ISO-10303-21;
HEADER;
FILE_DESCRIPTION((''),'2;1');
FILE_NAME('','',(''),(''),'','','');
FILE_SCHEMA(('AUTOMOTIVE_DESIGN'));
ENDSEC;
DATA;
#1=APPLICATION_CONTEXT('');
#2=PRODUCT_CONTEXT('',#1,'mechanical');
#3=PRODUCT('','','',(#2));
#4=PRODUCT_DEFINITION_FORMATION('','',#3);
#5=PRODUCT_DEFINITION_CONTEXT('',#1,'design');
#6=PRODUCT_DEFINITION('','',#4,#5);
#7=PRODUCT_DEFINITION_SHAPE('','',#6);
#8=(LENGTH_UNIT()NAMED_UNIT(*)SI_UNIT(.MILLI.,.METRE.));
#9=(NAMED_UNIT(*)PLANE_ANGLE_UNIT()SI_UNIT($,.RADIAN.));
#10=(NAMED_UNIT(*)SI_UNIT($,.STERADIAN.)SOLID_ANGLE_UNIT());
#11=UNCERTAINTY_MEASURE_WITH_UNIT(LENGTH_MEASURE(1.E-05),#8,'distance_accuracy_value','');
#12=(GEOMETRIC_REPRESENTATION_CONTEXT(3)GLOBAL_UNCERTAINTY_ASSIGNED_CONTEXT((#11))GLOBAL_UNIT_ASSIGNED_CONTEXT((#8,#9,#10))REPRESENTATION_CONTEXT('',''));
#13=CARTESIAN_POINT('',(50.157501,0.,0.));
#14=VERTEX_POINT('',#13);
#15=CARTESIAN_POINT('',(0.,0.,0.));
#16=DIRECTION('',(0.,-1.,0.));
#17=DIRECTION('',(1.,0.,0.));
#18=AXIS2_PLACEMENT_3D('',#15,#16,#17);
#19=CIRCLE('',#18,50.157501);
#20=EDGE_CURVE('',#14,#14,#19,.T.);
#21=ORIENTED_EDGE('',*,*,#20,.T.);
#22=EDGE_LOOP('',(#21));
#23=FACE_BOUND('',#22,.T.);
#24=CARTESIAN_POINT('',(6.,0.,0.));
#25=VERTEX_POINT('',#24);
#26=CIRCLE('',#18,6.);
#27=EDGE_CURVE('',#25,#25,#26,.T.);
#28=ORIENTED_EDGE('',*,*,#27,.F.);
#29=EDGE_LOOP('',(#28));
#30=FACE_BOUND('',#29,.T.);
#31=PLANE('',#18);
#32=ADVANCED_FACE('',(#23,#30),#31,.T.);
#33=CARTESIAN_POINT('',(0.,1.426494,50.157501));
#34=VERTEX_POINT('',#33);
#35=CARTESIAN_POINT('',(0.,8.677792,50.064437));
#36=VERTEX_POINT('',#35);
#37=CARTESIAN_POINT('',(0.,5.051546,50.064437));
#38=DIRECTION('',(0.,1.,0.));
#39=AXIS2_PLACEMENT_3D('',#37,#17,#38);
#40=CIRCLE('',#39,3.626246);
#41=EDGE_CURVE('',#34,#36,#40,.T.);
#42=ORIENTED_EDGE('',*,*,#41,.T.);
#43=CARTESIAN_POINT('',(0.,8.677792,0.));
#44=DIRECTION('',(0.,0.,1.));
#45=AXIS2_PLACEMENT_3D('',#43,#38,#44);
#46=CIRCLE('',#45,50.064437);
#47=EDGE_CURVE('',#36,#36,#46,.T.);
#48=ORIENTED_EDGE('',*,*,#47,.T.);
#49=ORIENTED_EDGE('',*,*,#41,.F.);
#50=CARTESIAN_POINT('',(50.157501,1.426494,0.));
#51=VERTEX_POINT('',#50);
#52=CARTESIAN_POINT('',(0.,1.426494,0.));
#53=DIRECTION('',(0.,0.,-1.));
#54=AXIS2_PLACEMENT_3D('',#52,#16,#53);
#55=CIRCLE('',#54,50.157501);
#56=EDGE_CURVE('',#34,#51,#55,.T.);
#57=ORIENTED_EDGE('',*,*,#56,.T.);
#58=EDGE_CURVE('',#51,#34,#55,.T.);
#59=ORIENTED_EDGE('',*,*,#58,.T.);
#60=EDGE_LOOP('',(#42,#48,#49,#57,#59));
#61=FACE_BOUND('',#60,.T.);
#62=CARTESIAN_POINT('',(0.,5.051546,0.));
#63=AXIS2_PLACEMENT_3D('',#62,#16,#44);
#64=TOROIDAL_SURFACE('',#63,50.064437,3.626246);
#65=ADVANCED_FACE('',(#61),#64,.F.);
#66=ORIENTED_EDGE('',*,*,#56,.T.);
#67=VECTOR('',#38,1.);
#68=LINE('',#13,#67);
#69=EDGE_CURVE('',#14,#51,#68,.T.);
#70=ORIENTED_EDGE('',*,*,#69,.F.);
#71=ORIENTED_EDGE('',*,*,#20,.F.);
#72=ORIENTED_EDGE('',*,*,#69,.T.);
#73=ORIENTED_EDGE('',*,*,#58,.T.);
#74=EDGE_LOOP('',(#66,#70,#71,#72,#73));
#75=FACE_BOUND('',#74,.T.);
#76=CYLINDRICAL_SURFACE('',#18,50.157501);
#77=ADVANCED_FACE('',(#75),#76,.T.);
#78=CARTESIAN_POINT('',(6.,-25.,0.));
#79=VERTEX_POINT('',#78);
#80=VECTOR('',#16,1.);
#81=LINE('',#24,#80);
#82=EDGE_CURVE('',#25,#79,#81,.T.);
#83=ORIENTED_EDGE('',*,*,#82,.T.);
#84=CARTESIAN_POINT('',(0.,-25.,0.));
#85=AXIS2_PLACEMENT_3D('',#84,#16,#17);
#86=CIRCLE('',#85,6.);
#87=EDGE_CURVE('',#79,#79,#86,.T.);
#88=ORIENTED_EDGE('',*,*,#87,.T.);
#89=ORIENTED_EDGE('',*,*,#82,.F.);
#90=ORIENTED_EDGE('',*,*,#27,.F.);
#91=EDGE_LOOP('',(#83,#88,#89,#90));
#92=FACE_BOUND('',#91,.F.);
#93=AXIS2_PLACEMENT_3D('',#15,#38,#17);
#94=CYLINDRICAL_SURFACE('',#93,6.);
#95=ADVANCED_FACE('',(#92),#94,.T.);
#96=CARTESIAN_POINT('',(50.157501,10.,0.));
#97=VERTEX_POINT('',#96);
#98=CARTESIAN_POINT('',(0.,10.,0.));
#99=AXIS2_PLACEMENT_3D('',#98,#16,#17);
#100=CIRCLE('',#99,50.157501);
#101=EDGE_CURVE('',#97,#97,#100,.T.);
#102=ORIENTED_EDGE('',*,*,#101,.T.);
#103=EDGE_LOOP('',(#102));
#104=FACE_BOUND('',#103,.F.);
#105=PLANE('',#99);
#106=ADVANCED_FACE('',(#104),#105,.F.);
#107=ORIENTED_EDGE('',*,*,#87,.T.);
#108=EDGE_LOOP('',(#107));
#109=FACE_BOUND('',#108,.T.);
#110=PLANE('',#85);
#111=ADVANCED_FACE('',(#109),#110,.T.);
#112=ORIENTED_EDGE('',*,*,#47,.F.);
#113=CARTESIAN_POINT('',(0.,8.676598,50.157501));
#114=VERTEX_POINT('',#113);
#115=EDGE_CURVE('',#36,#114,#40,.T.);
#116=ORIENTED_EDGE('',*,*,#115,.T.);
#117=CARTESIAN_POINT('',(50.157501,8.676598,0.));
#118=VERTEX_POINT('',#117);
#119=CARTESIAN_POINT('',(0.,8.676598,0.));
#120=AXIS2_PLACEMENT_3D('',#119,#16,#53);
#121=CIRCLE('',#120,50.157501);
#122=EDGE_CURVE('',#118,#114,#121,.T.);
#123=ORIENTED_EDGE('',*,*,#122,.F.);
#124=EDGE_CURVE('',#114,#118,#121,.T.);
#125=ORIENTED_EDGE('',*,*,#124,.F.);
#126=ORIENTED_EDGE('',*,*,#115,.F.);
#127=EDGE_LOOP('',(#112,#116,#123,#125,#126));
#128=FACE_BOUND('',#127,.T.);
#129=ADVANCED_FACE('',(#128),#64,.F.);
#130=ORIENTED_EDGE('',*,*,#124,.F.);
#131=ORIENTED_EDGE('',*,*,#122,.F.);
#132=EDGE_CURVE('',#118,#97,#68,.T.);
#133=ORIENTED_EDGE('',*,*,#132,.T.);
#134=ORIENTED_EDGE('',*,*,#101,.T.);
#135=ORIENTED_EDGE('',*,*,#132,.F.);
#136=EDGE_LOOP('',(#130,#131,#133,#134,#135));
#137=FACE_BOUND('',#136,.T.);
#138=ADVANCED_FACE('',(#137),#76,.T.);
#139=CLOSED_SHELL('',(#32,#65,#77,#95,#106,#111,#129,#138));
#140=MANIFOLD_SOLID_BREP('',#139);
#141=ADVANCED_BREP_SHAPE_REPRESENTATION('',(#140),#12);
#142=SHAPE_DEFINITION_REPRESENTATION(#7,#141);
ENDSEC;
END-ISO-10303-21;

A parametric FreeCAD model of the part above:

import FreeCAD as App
import Part
import Sketcher
Q = App.Units.Quantity

doc = App.newDocument("Part")
body = doc.addObject("PartDesign::Body", "Body")

# Sketch on XZ plane
sketch1 = body.newObject("Sketcher::SketchObject", "Sketch")
sketch1.AttachmentSupport = (doc.getObject("XZ_Plane"), [""])
sketch1.MapMode = "FlatFace"
sketch1.addGeometry(Part.Circle(App.Vector(0, 0, 0), App.Vector(0, 0, 1), 50), False)
sketch1.addConstraint([
    Sketcher.Constraint("Coincident", 0, 3, -1, 1),
    Sketcher.Constraint("Diameter", 0, Q("100.315002 mm")),
])
pad1 = body.newObject("PartDesign::Pad", "Pad")
pad1.Profile = sketch1
pad1.Length = 10
pad1.Reversed = True

# Sketch on YZ plane
sketch2 = body.newObject("Sketcher::SketchObject", "Sketch001")
sketch2.AttachmentSupport = (doc.getObject("YZ_Plane"), [""])
sketch2.MapMode = "FlatFace"
sketch2.addGeometry(Part.Circle(App.Vector(5.1, 50.1, 0), App.Vector(0, 0, 1), 3.6), False)
sketch2.addConstraint([
    Sketcher.Constraint("Diameter", 0, Q("7.252492 mm")),
    Sketcher.Constraint("DistanceX", -1, 1, 0, 3, Q("5.051546 mm")),
    Sketcher.Constraint("DistanceY", -1, 1, 0, 3, Q("50.064437 mm")),
])
groove = body.newObject("PartDesign::Groove", "Groove")
groove.Profile = sketch2
groove.ReferenceAxis = (sketch2, ["H_Axis"])
groove.Angle = 360

# Sketch on XZ plane
sketch3 = body.newObject("Sketcher::SketchObject", "Sketch002")
sketch3.AttachmentSupport = (doc.getObject("XZ_Plane"), [""])
sketch3.MapMode = "FlatFace"
sketch3.addGeometry(Part.Circle(App.Vector(0, 0, 0), App.Vector(0, 0, 1), 6), False)
sketch3.addConstraint([
    Sketcher.Constraint("Coincident", 0, 3, -1, 1),
    Sketcher.Constraint("Diameter", 0, Q("12 mm")),
])
pad2 = body.newObject("PartDesign::Pad", "Pad001")
pad2.Profile = sketch3
pad2.Length = 25
body2 = doc.addObject("PartDesign::Body", "Body001")

# Sketch on YZ plane
sketch4 = body2.newObject("Sketcher::SketchObject", "Sketch003")
sketch4.AttachmentSupport = (doc.getObject("YZ_Plane001"), [""])
sketch4.MapMode = "FlatFace"
sketch4.addGeometry(Part.Circle(App.Vector(0, 74.8, 0), App.Vector(0, 0, 1), 3.8), False)
sketch4.addConstraint([
    Sketcher.Constraint("PointOnObject", 0, 3, -2),
    Sketcher.Constraint("Diameter", 0, Q("7.594094 mm")),
    Sketcher.Constraint("DistanceY", -1, 1, 0, 3, Q("74.842192 mm")),
])
pad3 = body2.newObject("PartDesign::Pad", "Pad002")
pad3.Profile = sketch4
pad3.Length = 200
pad3.Midplane = True
body2.Visibility = False

doc.recompute()
